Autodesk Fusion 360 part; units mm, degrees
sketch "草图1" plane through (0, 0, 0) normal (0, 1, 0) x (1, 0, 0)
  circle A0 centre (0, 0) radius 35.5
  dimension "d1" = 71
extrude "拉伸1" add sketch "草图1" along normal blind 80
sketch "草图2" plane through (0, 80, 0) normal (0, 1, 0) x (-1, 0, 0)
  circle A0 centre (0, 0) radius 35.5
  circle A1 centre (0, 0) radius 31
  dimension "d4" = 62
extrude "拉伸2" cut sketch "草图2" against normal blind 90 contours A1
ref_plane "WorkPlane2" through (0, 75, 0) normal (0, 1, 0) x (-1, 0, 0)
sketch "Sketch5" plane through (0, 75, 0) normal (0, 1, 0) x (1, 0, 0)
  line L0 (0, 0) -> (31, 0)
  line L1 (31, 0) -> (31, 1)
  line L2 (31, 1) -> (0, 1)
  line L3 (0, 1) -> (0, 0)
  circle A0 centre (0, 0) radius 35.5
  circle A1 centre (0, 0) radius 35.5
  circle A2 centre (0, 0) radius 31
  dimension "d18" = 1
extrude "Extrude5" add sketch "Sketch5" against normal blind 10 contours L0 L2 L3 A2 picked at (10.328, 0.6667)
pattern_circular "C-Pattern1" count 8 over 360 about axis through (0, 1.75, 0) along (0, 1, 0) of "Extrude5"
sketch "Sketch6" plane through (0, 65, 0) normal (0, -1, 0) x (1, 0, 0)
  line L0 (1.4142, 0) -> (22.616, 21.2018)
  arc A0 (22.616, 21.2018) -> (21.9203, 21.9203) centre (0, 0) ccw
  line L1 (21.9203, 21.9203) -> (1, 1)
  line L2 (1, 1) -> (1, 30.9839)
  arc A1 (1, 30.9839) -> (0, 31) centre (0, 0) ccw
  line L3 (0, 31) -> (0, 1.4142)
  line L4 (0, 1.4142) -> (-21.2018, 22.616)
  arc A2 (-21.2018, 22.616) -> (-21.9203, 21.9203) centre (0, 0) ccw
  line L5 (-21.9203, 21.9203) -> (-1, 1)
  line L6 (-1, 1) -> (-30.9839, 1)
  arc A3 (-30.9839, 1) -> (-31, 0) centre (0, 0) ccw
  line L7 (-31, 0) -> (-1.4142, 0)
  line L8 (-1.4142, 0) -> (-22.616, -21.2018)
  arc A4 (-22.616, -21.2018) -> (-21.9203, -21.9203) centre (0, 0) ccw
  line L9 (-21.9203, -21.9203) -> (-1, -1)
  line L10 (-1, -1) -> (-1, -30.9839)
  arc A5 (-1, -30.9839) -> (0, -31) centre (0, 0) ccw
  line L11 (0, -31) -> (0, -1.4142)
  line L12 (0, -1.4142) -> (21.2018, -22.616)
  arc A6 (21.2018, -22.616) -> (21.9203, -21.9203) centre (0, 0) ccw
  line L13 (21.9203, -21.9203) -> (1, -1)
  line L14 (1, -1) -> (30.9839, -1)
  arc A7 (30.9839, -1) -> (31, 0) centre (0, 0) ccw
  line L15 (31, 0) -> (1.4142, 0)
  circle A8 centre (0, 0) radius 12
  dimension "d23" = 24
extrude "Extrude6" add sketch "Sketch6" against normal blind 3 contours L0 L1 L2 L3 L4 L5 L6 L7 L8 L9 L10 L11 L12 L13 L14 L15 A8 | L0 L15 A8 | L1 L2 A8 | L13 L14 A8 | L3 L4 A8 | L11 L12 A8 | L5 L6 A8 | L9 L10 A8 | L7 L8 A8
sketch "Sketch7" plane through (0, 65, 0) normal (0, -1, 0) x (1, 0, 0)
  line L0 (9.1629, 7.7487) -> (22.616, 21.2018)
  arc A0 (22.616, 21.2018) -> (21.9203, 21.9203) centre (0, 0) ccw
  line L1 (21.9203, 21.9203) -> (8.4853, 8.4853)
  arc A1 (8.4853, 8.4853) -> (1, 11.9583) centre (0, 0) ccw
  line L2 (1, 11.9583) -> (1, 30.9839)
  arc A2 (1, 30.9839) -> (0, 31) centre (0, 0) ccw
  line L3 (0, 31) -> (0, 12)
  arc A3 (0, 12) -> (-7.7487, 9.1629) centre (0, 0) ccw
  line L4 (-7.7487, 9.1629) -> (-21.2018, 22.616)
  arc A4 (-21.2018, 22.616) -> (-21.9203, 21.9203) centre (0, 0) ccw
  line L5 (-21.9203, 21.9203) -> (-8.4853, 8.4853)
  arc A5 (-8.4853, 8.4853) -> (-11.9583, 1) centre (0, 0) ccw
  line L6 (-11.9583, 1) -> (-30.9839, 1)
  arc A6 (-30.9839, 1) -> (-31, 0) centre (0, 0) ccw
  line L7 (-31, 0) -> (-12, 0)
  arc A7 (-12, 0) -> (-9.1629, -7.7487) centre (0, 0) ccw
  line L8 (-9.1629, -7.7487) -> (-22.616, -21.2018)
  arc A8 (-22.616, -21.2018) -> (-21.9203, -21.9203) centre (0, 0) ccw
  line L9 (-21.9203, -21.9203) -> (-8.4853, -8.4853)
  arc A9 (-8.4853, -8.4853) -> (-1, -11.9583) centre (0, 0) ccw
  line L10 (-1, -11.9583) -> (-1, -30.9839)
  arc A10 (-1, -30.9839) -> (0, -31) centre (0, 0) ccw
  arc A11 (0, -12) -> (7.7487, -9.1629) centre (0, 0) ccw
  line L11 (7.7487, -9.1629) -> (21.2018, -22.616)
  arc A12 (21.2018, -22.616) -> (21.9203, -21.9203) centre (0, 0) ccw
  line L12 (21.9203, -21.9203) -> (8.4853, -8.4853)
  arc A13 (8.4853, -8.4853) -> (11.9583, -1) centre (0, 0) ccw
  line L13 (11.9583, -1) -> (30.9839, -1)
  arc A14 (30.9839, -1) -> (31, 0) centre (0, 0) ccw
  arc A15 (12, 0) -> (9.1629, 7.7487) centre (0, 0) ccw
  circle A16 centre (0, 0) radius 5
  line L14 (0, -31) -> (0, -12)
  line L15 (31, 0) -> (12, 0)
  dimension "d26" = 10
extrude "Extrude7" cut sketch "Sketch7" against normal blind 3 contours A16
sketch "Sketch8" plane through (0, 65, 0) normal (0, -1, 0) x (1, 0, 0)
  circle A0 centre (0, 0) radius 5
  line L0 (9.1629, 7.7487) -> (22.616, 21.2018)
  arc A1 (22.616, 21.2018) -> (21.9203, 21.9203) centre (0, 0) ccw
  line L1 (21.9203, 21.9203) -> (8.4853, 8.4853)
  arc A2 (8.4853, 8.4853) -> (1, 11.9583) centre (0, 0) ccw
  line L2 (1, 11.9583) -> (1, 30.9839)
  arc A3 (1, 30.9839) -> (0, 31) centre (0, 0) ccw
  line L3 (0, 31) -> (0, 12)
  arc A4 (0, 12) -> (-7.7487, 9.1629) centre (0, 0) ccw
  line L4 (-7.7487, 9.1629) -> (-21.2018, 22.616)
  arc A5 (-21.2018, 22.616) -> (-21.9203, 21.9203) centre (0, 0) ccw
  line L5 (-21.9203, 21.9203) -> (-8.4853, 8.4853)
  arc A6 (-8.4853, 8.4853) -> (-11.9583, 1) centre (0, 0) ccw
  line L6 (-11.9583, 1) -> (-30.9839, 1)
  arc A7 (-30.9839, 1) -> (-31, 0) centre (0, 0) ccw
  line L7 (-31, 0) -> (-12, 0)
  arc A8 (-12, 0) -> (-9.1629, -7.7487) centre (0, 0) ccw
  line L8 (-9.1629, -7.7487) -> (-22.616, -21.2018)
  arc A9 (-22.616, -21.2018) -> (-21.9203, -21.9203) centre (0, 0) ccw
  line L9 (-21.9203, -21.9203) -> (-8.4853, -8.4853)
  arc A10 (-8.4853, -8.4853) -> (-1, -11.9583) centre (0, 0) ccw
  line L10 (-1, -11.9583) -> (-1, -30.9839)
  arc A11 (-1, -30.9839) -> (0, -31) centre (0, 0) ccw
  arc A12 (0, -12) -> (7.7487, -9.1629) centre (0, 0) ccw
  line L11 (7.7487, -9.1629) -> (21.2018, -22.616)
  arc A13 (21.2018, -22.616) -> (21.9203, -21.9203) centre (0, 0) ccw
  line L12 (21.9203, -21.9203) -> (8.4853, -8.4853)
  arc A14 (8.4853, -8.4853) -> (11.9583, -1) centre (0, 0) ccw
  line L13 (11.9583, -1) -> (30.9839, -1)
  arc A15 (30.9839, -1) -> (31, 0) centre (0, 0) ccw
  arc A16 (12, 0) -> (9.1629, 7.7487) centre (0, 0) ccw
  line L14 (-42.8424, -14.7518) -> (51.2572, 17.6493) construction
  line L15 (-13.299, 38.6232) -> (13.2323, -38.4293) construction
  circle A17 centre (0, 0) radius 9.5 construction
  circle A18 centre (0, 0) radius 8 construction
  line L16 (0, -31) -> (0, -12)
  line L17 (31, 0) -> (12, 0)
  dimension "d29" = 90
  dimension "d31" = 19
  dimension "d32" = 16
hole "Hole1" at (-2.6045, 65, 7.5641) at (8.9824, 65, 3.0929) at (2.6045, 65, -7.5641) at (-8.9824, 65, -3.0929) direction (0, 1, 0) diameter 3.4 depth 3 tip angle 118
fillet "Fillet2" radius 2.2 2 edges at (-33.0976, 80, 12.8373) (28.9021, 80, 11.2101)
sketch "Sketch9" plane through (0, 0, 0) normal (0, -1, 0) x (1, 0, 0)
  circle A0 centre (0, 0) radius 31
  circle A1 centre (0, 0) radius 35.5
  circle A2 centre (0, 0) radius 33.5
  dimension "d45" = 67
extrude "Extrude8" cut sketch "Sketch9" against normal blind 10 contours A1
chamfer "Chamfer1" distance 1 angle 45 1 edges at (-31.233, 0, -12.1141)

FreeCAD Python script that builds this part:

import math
import FreeCAD as App
import Part
import Sketcher
from FreeCAD import Vector


def edges_at(feature, points):
    """Names of the edges that pass closest to the given points."""
    edges = feature.Shape.Edges
    near = lambda p: min(range(len(edges)), key=lambda i: edges[i].distToShape(Part.Vertex(*p))[0])
    return sorted({f"Edge{near(p) + 1}" for p in points})

doc = App.newDocument("Part")
params = doc.addObject("Spreadsheet::Sheet", "Params")
for row, (alias, value) in enumerate([
    ("sketch1_diameter", "71 mm"),
    ("pad1_length", "80 mm"),
    ("sketch2_diameter", "62 mm"),
    ("pocket1_length", "90 mm"),
    ("sketch3_height", "1 mm"),
    ("sketch3_radius", "31 mm"),
    ("pad2_length", "10 mm"),
    ("sketch4_diameter", "24 mm"),
    ("pad3_length", "3 mm"),
    ("sketch5_diameter", "10 mm"),
    ("pocket2_length", "3 mm"),
    ("sketch6_diameter", "3.4 mm"),
    ("hole_diameter", "3.4 mm"),
    ("hole_depth", "3 mm"),
    ("fillet_radius", "2.2 mm"),
    ("sketch7_diameter", "67 mm"),
    ("sketch7_diameter2", "71 mm"),
    ("pocket3_length", "10 mm"),
    ("chamfer_size", "1 mm"),
], start=1):
    params.set(f"A{row}", alias)
    params.set(f"B{row}", "=" + value)
    params.setAlias(f"B{row}", alias)

body = doc.addObject("PartDesign::Body", "Body")

sketch1 = body.newObject("Sketcher::SketchObject", "Sketch")
sketch1.AttachmentSupport = (doc.getObject("XZ_Plane"), [""])
sketch1.MapMode = "FlatFace"
sketch1.addGeometry(Part.Circle(Vector(0, 0, 0), Vector(0, 0, 1), 36), False)
sketch1.addConstraint([
    Sketcher.Constraint("Coincident", 0, 3, -1, 1),
    Sketcher.Constraint("Diameter", 0, 71.0),
])
sketch1.setExpression("Constraints[1]", "Params.sketch1_diameter")
pad1 = body.newObject("PartDesign::Pad", "Pad")
pad1.Profile = sketch1
pad1.setExpression("Length", "Params.pad1_length")
pad1.Reversed = True

sketch2 = body.newObject("Sketcher::SketchObject", "Sketch001")
sketch2.AttachmentSupport = (doc.getObject("XZ_Plane"), [""])
sketch2.MapMode = "FlatFace"
sketch2.AttachmentOffset = App.Placement(Vector(0, 0, -80), App.Rotation())
sketch2.addGeometry(Part.Circle(Vector(0, 0, 0), Vector(0, 0, 1), 31), False)
sketch2.addConstraint([
    Sketcher.Constraint("Coincident", 0, 3, -1, 1),
    Sketcher.Constraint("Diameter", 0, 62.0),
])
sketch2.setExpression("Constraints[1]", "Params.sketch2_diameter")
pocket1 = body.newObject("PartDesign::Pocket", "Pocket")
pocket1.Profile = sketch2
pocket1.setExpression("Length", "Params.pocket1_length")
pocket1.Reversed = True

sketch3 = body.newObject("Sketcher::SketchObject", "Sketch002")
sketch3.AttachmentSupport = (doc.getObject("XZ_Plane"), [""])
sketch3.MapMode = "FlatFace"
sketch3.AttachmentOffset = App.Placement(Vector(0, 0, -75), App.Rotation())
sketch3.addGeometry([
    Part.LineSegment(Vector(0, -1, 0), Vector(0, 0, 0)),
    Part.LineSegment(Vector(0, 0, 0), Vector(31, 0, 0)),
    Part.ArcOfCircle(Part.Circle(Vector(0, 0, 0), Vector(0, 0, 1), 31), math.radians(-1.85), math.radians(0)),
    Part.LineSegment(Vector(31, -1, 0), Vector(0, -1, 0)),
], False)
sketch3.addConstraint([
    Sketcher.Constraint("Coincident", 0, 2, 1, 1),
    Sketcher.Constraint("Coincident", 1, 2, 2, 2),
    Sketcher.Constraint("Coincident", 2, 1, 3, 1),
    Sketcher.Constraint("Coincident", 3, 2, 0, 1),
    Sketcher.Constraint("Vertical", 0),
    Sketcher.Constraint("Horizontal", 1),
    Sketcher.Constraint("Horizontal", 3),
    Sketcher.Constraint("Coincident", 2, 3, -1, 1),
    Sketcher.Constraint("Coincident", 0, 2, -1, 1),
    Sketcher.Constraint("DistanceY", 0, 1, 0, 2, 1.0),
    Sketcher.Constraint("Radius", 2, 31.0),
])
sketch3.setExpression("Constraints[9]", "Params.sketch3_height")
sketch3.setExpression("Constraints[10]", "Params.sketch3_radius")
pad2 = body.newObject("PartDesign::Pad", "Pad001")
pad2.Profile = sketch3
pad2.setExpression("Length", "Params.pad2_length")
doc.recompute()

polarpattern = body.newObject("PartDesign::PolarPattern", "PolarPattern")
polarpattern.Originals = [pad2]
polarpattern.Axis = (doc.getObject("Y_Axis"), [""])
polarpattern.Angle = 360
polarpattern.Occurrences = 8
body.Tip = polarpattern

sketch4 = body.newObject("Sketcher::SketchObject", "Sketch003")
sketch4.AttachmentSupport = (doc.getObject("XZ_Plane"), [""])
sketch4.MapMode = "FlatFace"
sketch4.AttachmentOffset = App.Placement(Vector(0, 0, -65), App.Rotation())
sketch4.addGeometry(Part.Circle(Vector(0, 0, 0), Vector(0, 0, 1), 12), False)
sketch4.addConstraint([
    Sketcher.Constraint("Coincident", 0, 3, -1, 1),
    Sketcher.Constraint("Diameter", 0, 24.0),
])
sketch4.setExpression("Constraints[1]", "Params.sketch4_diameter")
pad3 = body.newObject("PartDesign::Pad", "Pad002")
pad3.Profile = sketch4
pad3.setExpression("Length", "Params.pad3_length")
pad3.Reversed = True

sketch5 = body.newObject("Sketcher::SketchObject", "Sketch004")
sketch5.AttachmentSupport = (doc.getObject("XZ_Plane"), [""])
sketch5.MapMode = "FlatFace"
sketch5.AttachmentOffset = App.Placement(Vector(0, 0, -65), App.Rotation())
sketch5.addGeometry(Part.Circle(Vector(0, 0, 0), Vector(0, 0, 1), 5), False)
sketch5.addConstraint([
    Sketcher.Constraint("Coincident", 0, 3, -1, 1),
    Sketcher.Constraint("Diameter", 0, 10.0),
])
sketch5.setExpression("Constraints[1]", "Params.sketch5_diameter")
pocket2 = body.newObject("PartDesign::Pocket", "Pocket001")
pocket2.Profile = sketch5
pocket2.setExpression("Length", "Params.pocket2_length")

sketch6 = body.newObject("Sketcher::SketchObject", "Sketch005")
sketch6.AttachmentSupport = (doc.getObject("XZ_Plane"), [""])
sketch6.MapMode = "FlatFace"
sketch6.AttachmentOffset = App.Placement(Vector(0, 0, -65), App.Rotation())
sketch6.addGeometry([
    Part.Circle(Vector(-2.6, 7.6, 0), Vector(0, 0, 1), 1.7),
    Part.Circle(Vector(9, 3.1, 0), Vector(0, 0, 1), 1.7),
    Part.Circle(Vector(2.6, -7.6, 0), Vector(0, 0, 1), 1.7),
    Part.Circle(Vector(-9, -3.1, 0), Vector(0, 0, 1), 1.7),
], False)
sketch6.addConstraint([
    Sketcher.Constraint("Equal", 0, 1),
    Sketcher.Constraint("Equal", 1, 2),
    Sketcher.Constraint("Equal", 2, 3),
    Sketcher.Constraint("Symmetric", 0, 3, 2, 3, -1, 1),
    Sketcher.Constraint("Symmetric", 1, 3, 3, 3, -1, 1),
    Sketcher.Constraint("Diameter", 0, 3.4),
    Sketcher.Constraint("DistanceY", -1, 1, 0, 3, 7.564),
    Sketcher.Constraint("DistanceY", -1, 1, 1, 3, 3.093),
    Sketcher.Constraint("DistanceX", 0, 3, 1, 3, 11.587),
    Sketcher.Constraint("DistanceX", 2, 3, 1, 3, 6.378),
])
sketch6.setExpression("Constraints[5]", "Params.sketch6_diameter")
doc.recompute()
hole = body.newObject("PartDesign::Hole", "Hole")
hole.Profile = sketch6
hole.ThreadType = "None"
hole.setExpression("Diameter", "Params.hole_diameter")
hole.DepthType = "Dimension"
hole.setExpression("Depth", "Params.hole_depth")
hole.DrillPoint = "Angled"
hole.DrillPointAngle = 118
doc.recompute()

fillet = body.newObject("PartDesign::Fillet", "Fillet")
fillet.Base = (hole, edges_at(hole, [(-33.098, 80, 12.837), (28.902, 80, 11.21)]))
fillet.setExpression("Radius", "Params.fillet_radius")

sketch7 = body.newObject("Sketcher::SketchObject", "Sketch006")
sketch7.AttachmentSupport = (doc.getObject("XZ_Plane"), [""])
sketch7.MapMode = "FlatFace"
sketch7.addGeometry([
    Part.Circle(Vector(0, 0, 0), Vector(0, 0, 1), 36),
    Part.Circle(Vector(0, 0, 0), Vector(0, 0, 1), 34),
], False)
sketch7.addConstraint([
    Sketcher.Constraint("Coincident", 0, 3, -1, 1),
    Sketcher.Constraint("Coincident", 1, 3, -1, 1),
    Sketcher.Constraint("Diameter", 1, 67.0),
    Sketcher.Constraint("Diameter", 0, 71.0),
])
sketch7.setExpression("Constraints[2]", "Params.sketch7_diameter")
sketch7.setExpression("Constraints[3]", "Params.sketch7_diameter2")
pocket3 = body.newObject("PartDesign::Pocket", "Pocket002")
pocket3.Profile = sketch7
pocket3.setExpression("Length", "Params.pocket3_length")
doc.recompute()

chamfer = body.newObject("PartDesign::Chamfer", "Chamfer")
chamfer.Base = (pocket3, edges_at(pocket3, [(-31.233, 0, -12.114)]))
chamfer.setExpression("Size", "Params.chamfer_size")

doc.recompute()
